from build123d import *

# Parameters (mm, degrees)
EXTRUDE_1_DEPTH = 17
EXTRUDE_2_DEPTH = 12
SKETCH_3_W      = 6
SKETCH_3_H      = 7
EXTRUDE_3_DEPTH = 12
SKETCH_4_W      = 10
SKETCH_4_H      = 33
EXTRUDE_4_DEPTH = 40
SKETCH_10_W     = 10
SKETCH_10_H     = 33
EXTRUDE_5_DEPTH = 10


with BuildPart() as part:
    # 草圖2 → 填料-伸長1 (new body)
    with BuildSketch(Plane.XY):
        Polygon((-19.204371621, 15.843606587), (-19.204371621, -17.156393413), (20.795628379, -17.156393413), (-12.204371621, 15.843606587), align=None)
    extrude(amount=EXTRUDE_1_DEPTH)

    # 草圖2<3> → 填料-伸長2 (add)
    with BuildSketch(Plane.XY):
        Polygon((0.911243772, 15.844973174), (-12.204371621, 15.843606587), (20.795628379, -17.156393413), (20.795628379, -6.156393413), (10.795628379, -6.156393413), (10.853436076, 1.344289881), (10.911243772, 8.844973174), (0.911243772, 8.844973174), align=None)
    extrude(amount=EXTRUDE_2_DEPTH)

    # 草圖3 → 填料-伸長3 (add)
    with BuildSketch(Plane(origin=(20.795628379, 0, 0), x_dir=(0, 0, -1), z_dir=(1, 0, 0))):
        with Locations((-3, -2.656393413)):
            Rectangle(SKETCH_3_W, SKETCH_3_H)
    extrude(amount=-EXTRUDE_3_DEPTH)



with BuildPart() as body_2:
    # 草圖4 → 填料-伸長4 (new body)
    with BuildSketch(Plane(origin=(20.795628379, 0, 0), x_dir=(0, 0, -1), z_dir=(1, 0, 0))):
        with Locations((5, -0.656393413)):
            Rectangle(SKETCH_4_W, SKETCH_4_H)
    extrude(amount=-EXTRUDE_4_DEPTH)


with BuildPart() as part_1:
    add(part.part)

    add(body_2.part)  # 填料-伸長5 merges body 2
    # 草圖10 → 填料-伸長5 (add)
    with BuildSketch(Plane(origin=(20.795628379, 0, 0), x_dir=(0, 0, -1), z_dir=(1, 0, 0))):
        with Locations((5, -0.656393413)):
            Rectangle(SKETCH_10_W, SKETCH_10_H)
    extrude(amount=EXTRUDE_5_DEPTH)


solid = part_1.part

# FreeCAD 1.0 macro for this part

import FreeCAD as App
import Part
import Sketcher

V = App.Vector
Q = App.Units.Quantity


def add_polygon(sketch, points):
    """Adds a closed chain of lines whose ends are joined by coincident constraints."""
    first, n = sketch.GeometryCount, len(points)
    for a, b in zip(points, points[1:] + points[:1]):
        sketch.addGeometry(Part.LineSegment(App.Vector(*a, 0), App.Vector(*b, 0)), False)
    for i in range(n):
        sketch.addConstraint(Sketcher.Constraint("Coincident", first + i, 2, first + (i + 1) % n, 1))

doc = App.newDocument("Part")
body = doc.addObject("PartDesign::Body", "Body")

sketch1 = doc.addObject("Sketcher::SketchObject", "Sketch")
body.addObject(sketch1)
sketch1.AttachmentSupport = (doc.XY_Plane, [""])
sketch1.MapMode = "FlatFace"
add_polygon(sketch1, [(-19.204372, 15.843607), (-19.204372, -17.156393), (20.795628, -17.156393), (-12.204372, 15.843607)])
sketch1.addConstraint(Sketcher.Constraint("Vertical", 0))
sketch1.addConstraint(Sketcher.Constraint("Horizontal", 1))
sketch1.addConstraint(Sketcher.Constraint("Horizontal", 3))
sketch1.addConstraint(Sketcher.Constraint("DistanceX", 1, 1, 1, 2, 40.0))
sketch1.addConstraint(Sketcher.Constraint("DistanceX", 3, 2, 3, 1, 7.0))
sketch1.addConstraint(Sketcher.Constraint("DistanceY", 0, 2, 0, 1, 33.0))
sketch1.addConstraint(Sketcher.Constraint("DistanceX", 0, 2, -1, 1, 19.204372))
sketch1.addConstraint(Sketcher.Constraint("DistanceY", 0, 2, -1, 1, 17.156393))
pad1 = doc.addObject("PartDesign::Pad", "Pad")
body.addObject(pad1)
pad1.Profile = sketch1
pad1.Length = 17

sketch2 = doc.addObject("Sketcher::SketchObject", "Sketch001")
body.addObject(sketch2)
sketch2.AttachmentSupport = (doc.XY_Plane, [""])
sketch2.MapMode = "FlatFace"
add_polygon(sketch2, [(0.911244, 15.844973), (-12.204372, 15.843607), (20.795628, -17.156393), (20.795628, -6.156393), (10.795628, -6.156393), (10.853436, 1.34429), (10.911244, 8.844973), (0.911244, 8.844973)])
sketch2.addConstraint(Sketcher.Constraint("Vertical", 2))
sketch2.addConstraint(Sketcher.Constraint("Horizontal", 3))
sketch2.addConstraint(Sketcher.Constraint("Horizontal", 6))
sketch2.addConstraint(Sketcher.Constraint("Vertical", 7))
sketch2.addConstraint(Sketcher.Constraint("Parallel", 4, 5))
sketch2.addConstraint(Sketcher.Constraint("Equal", 3, 6))
sketch2.addConstraint(Sketcher.Constraint("Equal", 4, 5))
sketch2.addConstraint(Sketcher.Constraint("DistanceX", 3, 2, 3, 1, 10.0))
sketch2.addConstraint(Sketcher.Constraint("DistanceY", 2, 1, 2, 2, 11.0))
sketch2.addConstraint(Sketcher.Constraint("DistanceY", 7, 1, 7, 2, 7.0))
sketch2.addConstraint(Sketcher.Constraint("Angle", 1, Q("-45 deg")))
sketch2.addConstraint(Sketcher.Constraint("DistanceX", 0, 2, 1, 2, 33.0))
sketch2.addConstraint(Sketcher.Constraint("DistanceX", 0, 2, -1, 1, 12.204372))
sketch2.addConstraint(Sketcher.Constraint("DistanceY", -1, 1, 4, 2, 1.34429))
sketch2.addConstraint(Sketcher.Constraint("Distance", 0, 13.115615))
sketch2.addConstraint(Sketcher.Constraint("Distance", 4, 7.500906))
pad2 = doc.addObject("PartDesign::Pad", "Pad001")
body.addObject(pad2)
pad2.Profile = sketch2
pad2.Length = 12

sketch3 = doc.addObject("Sketcher::SketchObject", "Sketch002")
body.addObject(sketch3)
sketch3.AttachmentSupport = (doc.YZ_Plane, [""])
sketch3.MapMode = "FlatFace"
sketch3.AttachmentOffset = App.Placement(V(0, 0, 20.795628), App.Rotation())
add_polygon(sketch3, [(0.843607, 6), (-6.156393, 6), (-6.156393, 0), (0.843607, 0)])
sketch3.addConstraint(Sketcher.Constraint("Horizontal", 0))
sketch3.addConstraint(Sketcher.Constraint("Vertical", 1))
sketch3.addConstraint(Sketcher.Constraint("Horizontal", 2))
sketch3.addConstraint(Sketcher.Constraint("Vertical", 3))
sketch3.addConstraint(Sketcher.Constraint("PointOnObject", 1, 2, -1))
sketch3.addConstraint(Sketcher.Constraint("DistanceX", 0, 2, 0, 1, 7.0))
sketch3.addConstraint(Sketcher.Constraint("DistanceY", 1, 2, 1, 1, 6.0))
sketch3.addConstraint(Sketcher.Constraint("DistanceX", 0, 2, -1, 1, 6.156393))
pad3 = doc.addObject("PartDesign::Pad", "Pad002")
body.addObject(pad3)
pad3.Profile = sketch3
pad3.Length = 12
pad3.Reversed = True
body2 = doc.addObject("PartDesign::Body", "Body001")

sketch4 = doc.addObject("Sketcher::SketchObject", "Sketch003")
body2.addObject(sketch4)
sketch4.AttachmentSupport = (doc.getObject("YZ_Plane001"), [""])
sketch4.MapMode = "FlatFace"
sketch4.AttachmentOffset = App.Placement(V(0, 0, 20.795628), App.Rotation())
add_polygon(sketch4, [(15.843607, 0), (-17.156393, 0), (-17.156393, -10), (15.843607, -10)])
sketch4.addConstraint(Sketcher.Constraint("Horizontal", 0))
sketch4.addConstraint(Sketcher.Constraint("Vertical", 1))
sketch4.addConstraint(Sketcher.Constraint("Horizontal", 2))
sketch4.addConstraint(Sketcher.Constraint("Vertical", 3))
sketch4.addConstraint(Sketcher.Constraint("PointOnObject", 0, 2, -1))
sketch4.addConstraint(Sketcher.Constraint("DistanceX", 0, 2, 0, 1, 33.0))
sketch4.addConstraint(Sketcher.Constraint("DistanceY", 1, 2, 1, 1, 10.0))
sketch4.addConstraint(Sketcher.Constraint("DistanceX", 0, 2, -1, 1, 17.156393))
pad4 = doc.addObject("PartDesign::Pad", "Pad003")
body2.addObject(pad4)
pad4.Profile = sketch4
pad4.Length = 40
pad4.Reversed = True
doc.recompute()

boolean = doc.addObject("PartDesign::Boolean", "Boolean")
body.addObject(boolean)
boolean.Type = "Fuse"
boolean.addObjects([body2])

sketch5 = doc.addObject("Sketcher::SketchObject", "Sketch004")
body.addObject(sketch5)
sketch5.AttachmentSupport = (doc.YZ_Plane, [""])
sketch5.MapMode = "FlatFace"
sketch5.AttachmentOffset = App.Placement(V(0, 0, 20.795628), App.Rotation())
add_polygon(sketch5, [(15.843607, 0), (-17.156393, 0), (-17.156393, -10), (15.843607, -10)])
sketch5.addConstraint(Sketcher.Constraint("Horizontal", 0))
sketch5.addConstraint(Sketcher.Constraint("Vertical", 1))
sketch5.addConstraint(Sketcher.Constraint("Horizontal", 2))
sketch5.addConstraint(Sketcher.Constraint("Vertical", 3))
sketch5.addConstraint(Sketcher.Constraint("PointOnObject", 0, 2, -1))
sketch5.addConstraint(Sketcher.Constraint("DistanceX", 0, 2, 0, 1, 33.0))
sketch5.addConstraint(Sketcher.Constraint("DistanceY", 1, 2, 1, 1, 10.0))
sketch5.addConstraint(Sketcher.Constraint("DistanceX", 0, 2, -1, 1, 17.156393))
pad5 = doc.addObject("PartDesign::Pad", "Pad004")
body.addObject(pad5)
pad5.Profile = sketch5
pad5.Length = 10

doc.recompute()
